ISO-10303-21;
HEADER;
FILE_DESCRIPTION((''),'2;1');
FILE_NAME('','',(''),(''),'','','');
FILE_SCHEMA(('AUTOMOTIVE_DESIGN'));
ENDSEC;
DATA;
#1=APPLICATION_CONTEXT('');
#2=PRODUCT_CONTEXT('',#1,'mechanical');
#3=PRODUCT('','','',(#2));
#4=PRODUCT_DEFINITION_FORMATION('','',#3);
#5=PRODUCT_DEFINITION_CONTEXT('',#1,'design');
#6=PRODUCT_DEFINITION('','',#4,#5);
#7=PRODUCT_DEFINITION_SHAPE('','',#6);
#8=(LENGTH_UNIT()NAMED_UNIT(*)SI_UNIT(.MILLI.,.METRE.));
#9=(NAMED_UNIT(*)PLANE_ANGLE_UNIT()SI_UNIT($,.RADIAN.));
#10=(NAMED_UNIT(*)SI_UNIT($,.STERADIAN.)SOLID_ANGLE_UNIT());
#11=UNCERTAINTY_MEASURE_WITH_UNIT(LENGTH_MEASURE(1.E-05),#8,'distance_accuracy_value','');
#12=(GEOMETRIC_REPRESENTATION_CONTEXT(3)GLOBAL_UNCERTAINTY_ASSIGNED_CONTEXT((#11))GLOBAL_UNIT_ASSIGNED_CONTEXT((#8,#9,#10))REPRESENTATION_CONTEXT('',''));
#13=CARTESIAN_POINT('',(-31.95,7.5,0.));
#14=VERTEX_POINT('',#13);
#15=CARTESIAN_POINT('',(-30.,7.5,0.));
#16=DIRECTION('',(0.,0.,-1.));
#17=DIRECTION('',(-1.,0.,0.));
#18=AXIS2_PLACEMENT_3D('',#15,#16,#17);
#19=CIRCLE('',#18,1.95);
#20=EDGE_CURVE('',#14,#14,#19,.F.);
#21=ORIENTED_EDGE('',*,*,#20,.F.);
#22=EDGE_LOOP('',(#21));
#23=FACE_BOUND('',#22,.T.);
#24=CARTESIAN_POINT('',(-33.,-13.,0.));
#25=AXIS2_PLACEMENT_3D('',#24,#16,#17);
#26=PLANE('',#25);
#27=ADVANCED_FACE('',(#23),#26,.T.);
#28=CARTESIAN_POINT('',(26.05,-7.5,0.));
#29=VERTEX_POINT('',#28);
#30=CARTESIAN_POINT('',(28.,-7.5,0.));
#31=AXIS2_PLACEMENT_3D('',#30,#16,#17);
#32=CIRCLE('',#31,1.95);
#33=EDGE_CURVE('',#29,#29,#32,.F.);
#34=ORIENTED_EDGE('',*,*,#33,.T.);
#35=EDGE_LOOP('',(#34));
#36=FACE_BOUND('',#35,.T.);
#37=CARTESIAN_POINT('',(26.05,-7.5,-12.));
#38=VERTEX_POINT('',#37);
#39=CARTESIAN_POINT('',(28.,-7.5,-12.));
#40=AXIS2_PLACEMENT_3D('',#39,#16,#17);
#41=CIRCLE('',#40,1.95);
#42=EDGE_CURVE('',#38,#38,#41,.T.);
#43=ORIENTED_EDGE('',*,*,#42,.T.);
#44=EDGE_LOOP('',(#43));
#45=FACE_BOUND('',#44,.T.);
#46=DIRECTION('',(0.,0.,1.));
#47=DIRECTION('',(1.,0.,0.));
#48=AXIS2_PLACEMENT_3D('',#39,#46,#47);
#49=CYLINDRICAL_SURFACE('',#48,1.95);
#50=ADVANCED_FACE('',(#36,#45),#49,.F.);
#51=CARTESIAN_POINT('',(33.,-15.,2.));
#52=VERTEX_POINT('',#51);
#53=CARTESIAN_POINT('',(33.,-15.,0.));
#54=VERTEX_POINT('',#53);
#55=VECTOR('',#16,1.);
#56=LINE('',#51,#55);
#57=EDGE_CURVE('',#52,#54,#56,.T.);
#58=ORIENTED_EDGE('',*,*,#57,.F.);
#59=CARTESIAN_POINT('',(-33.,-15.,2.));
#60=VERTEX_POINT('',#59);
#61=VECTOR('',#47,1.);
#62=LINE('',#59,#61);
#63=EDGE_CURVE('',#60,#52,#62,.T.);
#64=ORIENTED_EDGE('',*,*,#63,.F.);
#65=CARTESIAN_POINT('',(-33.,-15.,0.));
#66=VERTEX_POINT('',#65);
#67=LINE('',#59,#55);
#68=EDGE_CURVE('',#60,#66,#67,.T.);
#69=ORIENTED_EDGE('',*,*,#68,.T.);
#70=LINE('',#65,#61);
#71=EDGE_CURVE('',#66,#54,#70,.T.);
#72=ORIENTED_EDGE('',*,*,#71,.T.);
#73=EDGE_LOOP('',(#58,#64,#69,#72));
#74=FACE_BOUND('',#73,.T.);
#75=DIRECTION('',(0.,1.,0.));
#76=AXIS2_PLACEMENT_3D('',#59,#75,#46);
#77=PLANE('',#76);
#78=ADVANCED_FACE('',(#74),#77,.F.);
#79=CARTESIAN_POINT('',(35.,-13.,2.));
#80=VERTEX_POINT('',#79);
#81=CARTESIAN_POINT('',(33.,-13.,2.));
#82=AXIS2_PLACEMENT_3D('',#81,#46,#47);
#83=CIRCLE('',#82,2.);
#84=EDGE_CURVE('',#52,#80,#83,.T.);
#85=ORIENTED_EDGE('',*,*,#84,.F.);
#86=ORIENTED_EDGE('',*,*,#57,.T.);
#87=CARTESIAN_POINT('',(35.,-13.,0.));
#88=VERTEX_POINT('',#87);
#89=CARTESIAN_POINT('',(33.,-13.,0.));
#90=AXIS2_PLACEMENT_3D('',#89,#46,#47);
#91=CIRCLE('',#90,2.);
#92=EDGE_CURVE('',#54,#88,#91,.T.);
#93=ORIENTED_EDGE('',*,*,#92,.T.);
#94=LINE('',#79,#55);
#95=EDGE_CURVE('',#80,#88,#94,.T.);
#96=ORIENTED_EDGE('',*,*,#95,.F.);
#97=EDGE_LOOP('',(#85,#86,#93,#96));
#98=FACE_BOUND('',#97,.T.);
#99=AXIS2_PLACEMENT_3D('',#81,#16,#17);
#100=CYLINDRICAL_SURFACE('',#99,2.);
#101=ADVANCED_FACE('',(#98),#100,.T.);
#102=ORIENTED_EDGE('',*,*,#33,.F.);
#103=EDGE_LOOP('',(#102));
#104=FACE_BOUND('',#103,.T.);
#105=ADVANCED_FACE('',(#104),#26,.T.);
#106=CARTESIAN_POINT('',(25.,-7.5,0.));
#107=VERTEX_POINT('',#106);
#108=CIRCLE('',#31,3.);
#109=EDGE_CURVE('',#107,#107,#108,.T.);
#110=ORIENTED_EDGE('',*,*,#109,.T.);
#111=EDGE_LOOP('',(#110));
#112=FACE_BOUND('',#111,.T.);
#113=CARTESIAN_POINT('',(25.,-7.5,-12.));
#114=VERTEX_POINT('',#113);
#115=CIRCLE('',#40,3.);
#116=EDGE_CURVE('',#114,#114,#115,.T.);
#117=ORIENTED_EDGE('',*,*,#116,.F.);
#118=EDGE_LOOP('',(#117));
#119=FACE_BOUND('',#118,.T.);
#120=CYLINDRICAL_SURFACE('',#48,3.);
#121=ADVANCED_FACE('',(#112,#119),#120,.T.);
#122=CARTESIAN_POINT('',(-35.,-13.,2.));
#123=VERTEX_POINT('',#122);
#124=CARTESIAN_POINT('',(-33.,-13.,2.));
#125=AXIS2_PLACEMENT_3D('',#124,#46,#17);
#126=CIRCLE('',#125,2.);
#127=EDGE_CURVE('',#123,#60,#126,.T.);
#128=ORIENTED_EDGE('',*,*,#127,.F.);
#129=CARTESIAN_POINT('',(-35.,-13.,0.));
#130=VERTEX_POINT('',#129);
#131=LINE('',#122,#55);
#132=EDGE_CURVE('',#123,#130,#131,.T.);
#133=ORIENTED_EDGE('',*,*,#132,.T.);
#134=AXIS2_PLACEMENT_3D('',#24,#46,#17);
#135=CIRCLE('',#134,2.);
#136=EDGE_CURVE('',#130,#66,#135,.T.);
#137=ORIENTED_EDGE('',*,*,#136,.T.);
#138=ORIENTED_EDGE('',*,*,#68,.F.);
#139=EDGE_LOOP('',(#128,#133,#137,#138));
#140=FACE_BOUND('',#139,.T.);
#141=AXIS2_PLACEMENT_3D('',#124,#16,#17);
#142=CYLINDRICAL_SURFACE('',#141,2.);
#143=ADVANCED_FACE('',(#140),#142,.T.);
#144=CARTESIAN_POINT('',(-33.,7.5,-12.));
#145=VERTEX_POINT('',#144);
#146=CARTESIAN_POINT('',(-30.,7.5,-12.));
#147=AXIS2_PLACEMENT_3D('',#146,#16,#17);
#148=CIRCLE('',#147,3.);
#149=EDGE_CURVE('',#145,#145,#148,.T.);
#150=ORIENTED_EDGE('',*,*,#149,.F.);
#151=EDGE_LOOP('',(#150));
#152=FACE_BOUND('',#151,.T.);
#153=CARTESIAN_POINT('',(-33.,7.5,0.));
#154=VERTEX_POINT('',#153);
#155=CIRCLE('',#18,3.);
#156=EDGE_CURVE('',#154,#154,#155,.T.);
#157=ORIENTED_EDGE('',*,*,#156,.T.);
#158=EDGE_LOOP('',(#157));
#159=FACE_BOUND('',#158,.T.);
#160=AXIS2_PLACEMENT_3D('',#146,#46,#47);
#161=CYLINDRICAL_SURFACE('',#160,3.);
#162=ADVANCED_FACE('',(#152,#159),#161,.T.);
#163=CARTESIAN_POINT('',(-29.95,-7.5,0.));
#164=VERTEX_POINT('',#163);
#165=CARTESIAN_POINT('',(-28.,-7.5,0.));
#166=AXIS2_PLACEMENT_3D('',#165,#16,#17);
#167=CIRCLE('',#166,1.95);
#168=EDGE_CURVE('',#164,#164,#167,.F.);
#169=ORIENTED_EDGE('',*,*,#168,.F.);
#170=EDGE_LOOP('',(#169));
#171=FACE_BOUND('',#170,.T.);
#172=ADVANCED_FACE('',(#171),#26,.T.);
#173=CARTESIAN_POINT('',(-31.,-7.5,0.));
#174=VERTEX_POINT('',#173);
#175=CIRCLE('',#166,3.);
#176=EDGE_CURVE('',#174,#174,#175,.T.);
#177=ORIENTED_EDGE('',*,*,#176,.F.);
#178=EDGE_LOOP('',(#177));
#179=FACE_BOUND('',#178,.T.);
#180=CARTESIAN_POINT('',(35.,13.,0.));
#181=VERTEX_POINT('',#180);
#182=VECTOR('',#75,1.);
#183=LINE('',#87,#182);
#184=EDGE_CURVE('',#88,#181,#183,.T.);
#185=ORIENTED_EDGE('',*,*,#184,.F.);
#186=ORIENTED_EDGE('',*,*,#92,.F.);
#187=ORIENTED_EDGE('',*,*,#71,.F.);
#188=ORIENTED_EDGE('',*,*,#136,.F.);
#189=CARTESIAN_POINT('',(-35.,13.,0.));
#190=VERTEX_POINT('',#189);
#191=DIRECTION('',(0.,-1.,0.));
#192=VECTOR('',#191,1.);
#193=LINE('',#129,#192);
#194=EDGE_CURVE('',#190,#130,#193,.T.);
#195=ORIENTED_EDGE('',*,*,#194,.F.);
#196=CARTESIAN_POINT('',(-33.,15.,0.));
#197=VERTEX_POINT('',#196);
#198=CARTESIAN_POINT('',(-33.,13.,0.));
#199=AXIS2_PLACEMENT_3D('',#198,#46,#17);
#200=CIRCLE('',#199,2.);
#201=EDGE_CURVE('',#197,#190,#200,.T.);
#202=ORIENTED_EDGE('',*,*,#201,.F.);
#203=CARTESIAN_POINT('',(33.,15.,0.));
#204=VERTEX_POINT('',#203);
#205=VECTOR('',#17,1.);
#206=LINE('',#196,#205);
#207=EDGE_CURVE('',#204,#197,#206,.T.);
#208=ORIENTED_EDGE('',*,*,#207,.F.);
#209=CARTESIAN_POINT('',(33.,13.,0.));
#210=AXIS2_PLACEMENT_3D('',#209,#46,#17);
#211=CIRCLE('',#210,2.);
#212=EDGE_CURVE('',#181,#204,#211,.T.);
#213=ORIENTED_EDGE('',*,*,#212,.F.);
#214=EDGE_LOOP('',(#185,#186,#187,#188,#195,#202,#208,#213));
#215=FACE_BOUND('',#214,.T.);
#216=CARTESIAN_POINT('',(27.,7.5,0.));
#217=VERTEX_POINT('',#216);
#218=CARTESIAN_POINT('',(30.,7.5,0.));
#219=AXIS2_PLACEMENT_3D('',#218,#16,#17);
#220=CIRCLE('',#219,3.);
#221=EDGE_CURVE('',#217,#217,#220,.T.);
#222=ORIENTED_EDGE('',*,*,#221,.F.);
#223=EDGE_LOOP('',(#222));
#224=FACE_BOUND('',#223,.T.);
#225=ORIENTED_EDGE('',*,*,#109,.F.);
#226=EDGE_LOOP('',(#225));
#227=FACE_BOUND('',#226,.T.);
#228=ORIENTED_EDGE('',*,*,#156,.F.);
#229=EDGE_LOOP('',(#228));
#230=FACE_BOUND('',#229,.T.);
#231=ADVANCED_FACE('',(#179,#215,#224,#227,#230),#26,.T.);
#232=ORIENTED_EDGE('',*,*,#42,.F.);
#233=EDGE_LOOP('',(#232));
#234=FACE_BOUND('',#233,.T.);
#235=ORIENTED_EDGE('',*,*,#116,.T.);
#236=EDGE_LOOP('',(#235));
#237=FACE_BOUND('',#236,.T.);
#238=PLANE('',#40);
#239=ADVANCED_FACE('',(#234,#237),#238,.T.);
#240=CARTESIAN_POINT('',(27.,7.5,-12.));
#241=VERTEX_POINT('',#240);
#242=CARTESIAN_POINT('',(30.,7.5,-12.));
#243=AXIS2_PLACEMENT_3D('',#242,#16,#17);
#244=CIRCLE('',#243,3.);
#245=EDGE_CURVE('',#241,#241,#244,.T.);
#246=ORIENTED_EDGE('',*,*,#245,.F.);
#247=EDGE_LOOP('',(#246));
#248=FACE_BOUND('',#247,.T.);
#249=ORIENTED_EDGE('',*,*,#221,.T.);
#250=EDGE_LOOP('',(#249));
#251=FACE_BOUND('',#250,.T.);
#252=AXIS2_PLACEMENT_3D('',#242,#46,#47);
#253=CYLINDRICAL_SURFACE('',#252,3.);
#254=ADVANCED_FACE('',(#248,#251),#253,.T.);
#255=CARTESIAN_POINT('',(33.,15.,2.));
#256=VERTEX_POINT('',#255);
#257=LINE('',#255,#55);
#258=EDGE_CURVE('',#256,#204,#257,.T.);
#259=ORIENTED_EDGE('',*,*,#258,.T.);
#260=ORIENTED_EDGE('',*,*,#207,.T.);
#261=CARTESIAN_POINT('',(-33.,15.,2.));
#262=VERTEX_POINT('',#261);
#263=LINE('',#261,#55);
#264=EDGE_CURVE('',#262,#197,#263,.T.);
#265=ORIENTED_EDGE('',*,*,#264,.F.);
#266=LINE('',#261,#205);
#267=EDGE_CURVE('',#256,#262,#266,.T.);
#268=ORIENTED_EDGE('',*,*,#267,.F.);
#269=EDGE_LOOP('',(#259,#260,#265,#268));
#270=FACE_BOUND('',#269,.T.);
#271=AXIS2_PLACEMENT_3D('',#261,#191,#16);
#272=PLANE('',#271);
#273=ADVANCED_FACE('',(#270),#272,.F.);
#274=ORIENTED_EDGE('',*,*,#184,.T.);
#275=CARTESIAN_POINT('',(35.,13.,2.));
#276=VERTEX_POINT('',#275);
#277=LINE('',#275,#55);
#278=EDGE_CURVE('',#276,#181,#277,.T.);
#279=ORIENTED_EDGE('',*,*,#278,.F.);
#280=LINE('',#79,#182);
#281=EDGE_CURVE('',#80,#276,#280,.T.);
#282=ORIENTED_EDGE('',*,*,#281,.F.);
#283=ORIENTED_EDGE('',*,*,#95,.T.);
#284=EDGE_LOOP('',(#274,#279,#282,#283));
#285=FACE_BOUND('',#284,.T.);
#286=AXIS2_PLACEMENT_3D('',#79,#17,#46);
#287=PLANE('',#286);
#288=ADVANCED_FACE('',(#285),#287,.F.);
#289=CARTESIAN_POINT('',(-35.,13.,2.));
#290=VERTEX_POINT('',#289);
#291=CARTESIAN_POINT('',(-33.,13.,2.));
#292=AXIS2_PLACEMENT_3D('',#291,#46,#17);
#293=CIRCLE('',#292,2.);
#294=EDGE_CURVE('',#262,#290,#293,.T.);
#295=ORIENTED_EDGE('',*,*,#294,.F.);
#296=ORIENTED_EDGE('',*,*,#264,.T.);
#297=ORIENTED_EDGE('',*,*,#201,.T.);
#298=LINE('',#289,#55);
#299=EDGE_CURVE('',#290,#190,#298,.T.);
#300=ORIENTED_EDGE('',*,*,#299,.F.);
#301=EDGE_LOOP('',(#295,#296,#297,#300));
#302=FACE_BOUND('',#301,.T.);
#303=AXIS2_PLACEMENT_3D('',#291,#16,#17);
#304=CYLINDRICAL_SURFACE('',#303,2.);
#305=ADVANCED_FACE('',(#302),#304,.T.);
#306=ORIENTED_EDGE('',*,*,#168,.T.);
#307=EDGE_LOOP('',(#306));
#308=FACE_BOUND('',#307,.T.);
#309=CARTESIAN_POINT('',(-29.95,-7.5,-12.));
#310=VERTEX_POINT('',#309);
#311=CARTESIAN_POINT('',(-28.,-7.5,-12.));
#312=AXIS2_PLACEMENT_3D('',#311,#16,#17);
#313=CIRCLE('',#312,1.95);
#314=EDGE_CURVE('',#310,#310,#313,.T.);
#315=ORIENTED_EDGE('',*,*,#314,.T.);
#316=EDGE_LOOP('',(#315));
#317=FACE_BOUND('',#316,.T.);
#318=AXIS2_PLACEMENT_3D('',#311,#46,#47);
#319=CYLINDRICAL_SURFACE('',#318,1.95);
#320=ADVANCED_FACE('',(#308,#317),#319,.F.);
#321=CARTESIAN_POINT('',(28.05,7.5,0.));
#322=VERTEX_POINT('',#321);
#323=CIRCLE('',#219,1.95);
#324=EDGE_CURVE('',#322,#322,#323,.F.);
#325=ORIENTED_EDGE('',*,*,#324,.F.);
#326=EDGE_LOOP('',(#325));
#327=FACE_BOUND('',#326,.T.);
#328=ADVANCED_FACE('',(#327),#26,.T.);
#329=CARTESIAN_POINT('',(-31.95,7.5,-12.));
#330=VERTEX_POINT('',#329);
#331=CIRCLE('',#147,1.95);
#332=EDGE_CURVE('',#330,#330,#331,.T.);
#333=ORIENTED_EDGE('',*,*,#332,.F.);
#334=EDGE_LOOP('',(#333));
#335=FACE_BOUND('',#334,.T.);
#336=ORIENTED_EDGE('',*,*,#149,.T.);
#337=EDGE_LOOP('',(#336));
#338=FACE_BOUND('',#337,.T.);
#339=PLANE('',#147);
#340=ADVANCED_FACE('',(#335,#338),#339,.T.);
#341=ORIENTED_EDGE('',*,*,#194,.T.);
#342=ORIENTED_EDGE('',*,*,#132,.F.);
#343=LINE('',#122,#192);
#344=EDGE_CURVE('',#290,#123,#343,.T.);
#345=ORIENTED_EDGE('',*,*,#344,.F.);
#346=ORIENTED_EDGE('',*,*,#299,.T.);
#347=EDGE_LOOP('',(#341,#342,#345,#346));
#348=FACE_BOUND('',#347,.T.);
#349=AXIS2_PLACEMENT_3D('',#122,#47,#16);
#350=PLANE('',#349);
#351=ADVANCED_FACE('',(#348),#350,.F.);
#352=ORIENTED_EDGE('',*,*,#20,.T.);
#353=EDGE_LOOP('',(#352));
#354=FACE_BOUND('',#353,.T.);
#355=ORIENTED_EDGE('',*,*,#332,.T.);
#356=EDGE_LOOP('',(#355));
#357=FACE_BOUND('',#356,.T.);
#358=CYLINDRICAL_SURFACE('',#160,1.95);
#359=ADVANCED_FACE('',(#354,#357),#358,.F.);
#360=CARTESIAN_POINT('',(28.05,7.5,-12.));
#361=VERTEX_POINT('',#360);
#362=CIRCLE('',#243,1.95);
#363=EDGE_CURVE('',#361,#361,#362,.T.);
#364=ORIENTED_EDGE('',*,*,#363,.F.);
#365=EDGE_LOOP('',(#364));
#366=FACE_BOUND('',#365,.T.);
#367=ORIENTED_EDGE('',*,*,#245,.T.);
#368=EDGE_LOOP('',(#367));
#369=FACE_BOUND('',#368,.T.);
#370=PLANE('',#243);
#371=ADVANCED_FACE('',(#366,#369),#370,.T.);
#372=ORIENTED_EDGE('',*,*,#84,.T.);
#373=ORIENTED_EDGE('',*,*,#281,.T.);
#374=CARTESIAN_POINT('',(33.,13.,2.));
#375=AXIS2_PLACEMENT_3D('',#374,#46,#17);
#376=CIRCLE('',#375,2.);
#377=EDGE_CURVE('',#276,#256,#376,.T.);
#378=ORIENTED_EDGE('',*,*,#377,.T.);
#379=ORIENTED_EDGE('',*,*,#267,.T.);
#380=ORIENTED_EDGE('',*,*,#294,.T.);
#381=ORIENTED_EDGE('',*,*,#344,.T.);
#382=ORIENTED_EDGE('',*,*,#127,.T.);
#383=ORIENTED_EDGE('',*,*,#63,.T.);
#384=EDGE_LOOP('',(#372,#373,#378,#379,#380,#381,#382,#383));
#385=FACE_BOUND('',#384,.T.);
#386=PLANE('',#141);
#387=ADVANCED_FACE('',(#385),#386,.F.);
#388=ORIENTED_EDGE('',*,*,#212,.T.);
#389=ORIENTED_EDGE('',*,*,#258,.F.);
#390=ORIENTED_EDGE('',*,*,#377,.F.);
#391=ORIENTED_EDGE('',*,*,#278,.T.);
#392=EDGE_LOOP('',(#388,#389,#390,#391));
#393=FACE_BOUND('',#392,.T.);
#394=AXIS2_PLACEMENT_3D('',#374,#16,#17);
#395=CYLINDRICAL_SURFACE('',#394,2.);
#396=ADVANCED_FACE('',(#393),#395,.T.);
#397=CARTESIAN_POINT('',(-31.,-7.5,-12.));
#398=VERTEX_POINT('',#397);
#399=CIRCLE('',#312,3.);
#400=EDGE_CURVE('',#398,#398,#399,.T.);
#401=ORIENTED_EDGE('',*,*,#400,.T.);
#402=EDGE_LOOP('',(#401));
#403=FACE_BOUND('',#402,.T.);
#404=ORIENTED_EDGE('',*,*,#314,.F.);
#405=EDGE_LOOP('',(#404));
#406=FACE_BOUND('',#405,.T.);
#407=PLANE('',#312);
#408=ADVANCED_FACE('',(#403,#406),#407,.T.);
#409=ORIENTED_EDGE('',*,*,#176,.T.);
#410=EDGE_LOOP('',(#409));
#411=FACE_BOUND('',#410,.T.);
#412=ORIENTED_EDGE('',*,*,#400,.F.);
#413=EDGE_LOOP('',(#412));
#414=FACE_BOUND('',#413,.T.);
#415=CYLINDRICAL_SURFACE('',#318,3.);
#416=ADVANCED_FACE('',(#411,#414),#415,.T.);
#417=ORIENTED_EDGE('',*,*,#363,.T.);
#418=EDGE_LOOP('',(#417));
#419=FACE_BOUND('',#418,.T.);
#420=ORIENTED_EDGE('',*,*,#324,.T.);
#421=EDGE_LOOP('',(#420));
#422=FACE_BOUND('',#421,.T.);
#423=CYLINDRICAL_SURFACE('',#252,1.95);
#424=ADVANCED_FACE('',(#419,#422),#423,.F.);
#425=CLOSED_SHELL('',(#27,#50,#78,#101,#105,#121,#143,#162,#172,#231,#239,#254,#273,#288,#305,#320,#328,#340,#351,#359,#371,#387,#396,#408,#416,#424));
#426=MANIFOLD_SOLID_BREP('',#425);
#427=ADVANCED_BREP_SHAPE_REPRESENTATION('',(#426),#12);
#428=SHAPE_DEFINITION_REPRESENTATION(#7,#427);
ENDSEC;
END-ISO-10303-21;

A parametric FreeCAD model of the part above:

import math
import FreeCAD as App
import Part
import Sketcher

V = App.Vector
Q = App.Units.Quantity

doc = App.newDocument("Part")
body = doc.addObject("PartDesign::Body", "Body")

sketch1 = body.newObject("Sketcher::SketchObject", "Sketch")
sketch1.AttachmentSupport = (doc.getObject("XY_Plane"), [""])
sketch1.MapMode = "FlatFace"
sketch1.addGeometry(Part.LineSegment(V(-33, -15, 0), V(33, -15, 0)), False)
sketch1.addGeometry(Part.ArcOfCircle(Part.Circle(V(33, -13, 0), V(0, 0, 1), 2), math.radians(-90), math.radians(0)), False)
sketch1.addGeometry(Part.LineSegment(V(35, -13, 0), V(35, 13, 0)), False)
sketch1.addGeometry(Part.ArcOfCircle(Part.Circle(V(33, 13, 0), V(0, 0, 1), 2), math.radians(0), math.radians(90)), False)
sketch1.addGeometry(Part.LineSegment(V(33, 15, 0), V(-33, 15, 0)), False)
sketch1.addGeometry(Part.ArcOfCircle(Part.Circle(V(-33, 13, 0), V(0, 0, 1), 2), math.radians(90), math.radians(180)), False)
sketch1.addGeometry(Part.LineSegment(V(-35, 13, 0), V(-35, -13, 0)), False)
sketch1.addGeometry(Part.ArcOfCircle(Part.Circle(V(-33, -13, 0), V(0, 0, 1), 2), math.radians(-180), math.radians(-90)), False)
sketch1.addConstraint(Sketcher.Constraint("Tangent", 0, 2, 1, 1))
sketch1.addConstraint(Sketcher.Constraint("Tangent", 1, 2, 2, 1))
sketch1.addConstraint(Sketcher.Constraint("Tangent", 2, 2, 3, 1))
sketch1.addConstraint(Sketcher.Constraint("Tangent", 3, 2, 4, 1))
sketch1.addConstraint(Sketcher.Constraint("Tangent", 4, 2, 5, 1))
sketch1.addConstraint(Sketcher.Constraint("Tangent", 5, 2, 6, 1))
sketch1.addConstraint(Sketcher.Constraint("Tangent", 6, 2, 7, 1))
sketch1.addConstraint(Sketcher.Constraint("Tangent", 7, 2, 0, 1))
sketch1.addConstraint(Sketcher.Constraint("Horizontal", 0))
sketch1.addConstraint(Sketcher.Constraint("Vertical", 2))
sketch1.addConstraint(Sketcher.Constraint("Horizontal", 4))
sketch1.addConstraint(Sketcher.Constraint("Vertical", 6))
sketch1.addConstraint(Sketcher.Constraint("Equal", 1, 3))
sketch1.addConstraint(Sketcher.Constraint("Equal", 3, 5))
sketch1.addConstraint(Sketcher.Constraint("Equal", 5, 7))
sketch1.addConstraint(Sketcher.Constraint("Symmetric", 1, 3, 5, 3, -1, 1))
sketch1.addConstraint(Sketcher.Constraint("Radius", 1, Q("2 mm")))
sketch1.addConstraint(Sketcher.Constraint("DistanceX", 0, 1, 0, 2, Q("66 mm")))
sketch1.addConstraint(Sketcher.Constraint("DistanceY", 2, 1, 2, 2, Q("26 mm")))
pad1 = body.newObject("PartDesign::Pad", "Pad")
pad1.Profile = sketch1
pad1.Length = 2

sketch2 = body.newObject("Sketcher::SketchObject", "Sketch001")
sketch2.AttachmentSupport = (doc.getObject("XY_Plane"), [""])
sketch2.MapMode = "FlatFace"
sketch2.addGeometry(Part.Circle(V(-28, -7.5, 0), V(0, 0, 1), 3), False)
sketch2.addGeometry(Part.Circle(V(-28, -7.5, 0), V(0, 0, 1), 1.95), False)
sketch2.addGeometry(Part.Circle(V(-30, 7.5, 0), V(0, 0, 1), 3), False)
sketch2.addGeometry(Part.Circle(V(-30, 7.5, 0), V(0, 0, 1), 1.95), False)
sketch2.addGeometry(Part.Circle(V(30, 7.5, 0), V(0, 0, 1), 3), False)
sketch2.addGeometry(Part.Circle(V(30, 7.5, 0), V(0, 0, 1), 1.95), False)
sketch2.addGeometry(Part.Circle(V(28, -7.5, 0), V(0, 0, 1), 3), False)
sketch2.addGeometry(Part.Circle(V(28, -7.5, 0), V(0, 0, 1), 1.95), False)
sketch2.addConstraint(Sketcher.Constraint("Coincident", 1, 3, 0, 3))
sketch2.addConstraint(Sketcher.Constraint("Coincident", 3, 3, 2, 3))
sketch2.addConstraint(Sketcher.Constraint("Coincident", 5, 3, 4, 3))
sketch2.addConstraint(Sketcher.Constraint("Coincident", 7, 3, 6, 3))
sketch2.addConstraint(Sketcher.Constraint("Equal", 0, 2))
sketch2.addConstraint(Sketcher.Constraint("Equal", 1, 3))
sketch2.addConstraint(Sketcher.Constraint("Equal", 2, 4))
sketch2.addConstraint(Sketcher.Constraint("Equal", 3, 5))
sketch2.addConstraint(Sketcher.Constraint("Equal", 4, 6))
sketch2.addConstraint(Sketcher.Constraint("Equal", 5, 7))
sketch2.addConstraint(Sketcher.Constraint("Symmetric", 2, 3, 4, 3, -2))
sketch2.addConstraint(Sketcher.Constraint("Symmetric", 0, 3, 6, 3, -2))
sketch2.addConstraint(Sketcher.Constraint("Diameter", 0, Q("6 mm")))
sketch2.addConstraint(Sketcher.Constraint("Diameter", 1, Q("3.9 mm")))
sketch2.addConstraint(Sketcher.Constraint("DistanceX", 0, 3, -1, 1, Q("28 mm")))
sketch2.addConstraint(Sketcher.Constraint("DistanceX", 2, 3, -1, 1, Q("30 mm")))
sketch2.addConstraint(Sketcher.Constraint("DistanceY", 0, 3, 2, 3, Q("15 mm")))
sketch2.addConstraint(Sketcher.Constraint("DistanceY", 0, 3, -1, 1, Q("7.5 mm")))
pad2 = body.newObject("PartDesign::Pad", "Pad001")
pad2.Profile = sketch2
pad2.Length = 12
pad2.Reversed = True

doc.recompute()
